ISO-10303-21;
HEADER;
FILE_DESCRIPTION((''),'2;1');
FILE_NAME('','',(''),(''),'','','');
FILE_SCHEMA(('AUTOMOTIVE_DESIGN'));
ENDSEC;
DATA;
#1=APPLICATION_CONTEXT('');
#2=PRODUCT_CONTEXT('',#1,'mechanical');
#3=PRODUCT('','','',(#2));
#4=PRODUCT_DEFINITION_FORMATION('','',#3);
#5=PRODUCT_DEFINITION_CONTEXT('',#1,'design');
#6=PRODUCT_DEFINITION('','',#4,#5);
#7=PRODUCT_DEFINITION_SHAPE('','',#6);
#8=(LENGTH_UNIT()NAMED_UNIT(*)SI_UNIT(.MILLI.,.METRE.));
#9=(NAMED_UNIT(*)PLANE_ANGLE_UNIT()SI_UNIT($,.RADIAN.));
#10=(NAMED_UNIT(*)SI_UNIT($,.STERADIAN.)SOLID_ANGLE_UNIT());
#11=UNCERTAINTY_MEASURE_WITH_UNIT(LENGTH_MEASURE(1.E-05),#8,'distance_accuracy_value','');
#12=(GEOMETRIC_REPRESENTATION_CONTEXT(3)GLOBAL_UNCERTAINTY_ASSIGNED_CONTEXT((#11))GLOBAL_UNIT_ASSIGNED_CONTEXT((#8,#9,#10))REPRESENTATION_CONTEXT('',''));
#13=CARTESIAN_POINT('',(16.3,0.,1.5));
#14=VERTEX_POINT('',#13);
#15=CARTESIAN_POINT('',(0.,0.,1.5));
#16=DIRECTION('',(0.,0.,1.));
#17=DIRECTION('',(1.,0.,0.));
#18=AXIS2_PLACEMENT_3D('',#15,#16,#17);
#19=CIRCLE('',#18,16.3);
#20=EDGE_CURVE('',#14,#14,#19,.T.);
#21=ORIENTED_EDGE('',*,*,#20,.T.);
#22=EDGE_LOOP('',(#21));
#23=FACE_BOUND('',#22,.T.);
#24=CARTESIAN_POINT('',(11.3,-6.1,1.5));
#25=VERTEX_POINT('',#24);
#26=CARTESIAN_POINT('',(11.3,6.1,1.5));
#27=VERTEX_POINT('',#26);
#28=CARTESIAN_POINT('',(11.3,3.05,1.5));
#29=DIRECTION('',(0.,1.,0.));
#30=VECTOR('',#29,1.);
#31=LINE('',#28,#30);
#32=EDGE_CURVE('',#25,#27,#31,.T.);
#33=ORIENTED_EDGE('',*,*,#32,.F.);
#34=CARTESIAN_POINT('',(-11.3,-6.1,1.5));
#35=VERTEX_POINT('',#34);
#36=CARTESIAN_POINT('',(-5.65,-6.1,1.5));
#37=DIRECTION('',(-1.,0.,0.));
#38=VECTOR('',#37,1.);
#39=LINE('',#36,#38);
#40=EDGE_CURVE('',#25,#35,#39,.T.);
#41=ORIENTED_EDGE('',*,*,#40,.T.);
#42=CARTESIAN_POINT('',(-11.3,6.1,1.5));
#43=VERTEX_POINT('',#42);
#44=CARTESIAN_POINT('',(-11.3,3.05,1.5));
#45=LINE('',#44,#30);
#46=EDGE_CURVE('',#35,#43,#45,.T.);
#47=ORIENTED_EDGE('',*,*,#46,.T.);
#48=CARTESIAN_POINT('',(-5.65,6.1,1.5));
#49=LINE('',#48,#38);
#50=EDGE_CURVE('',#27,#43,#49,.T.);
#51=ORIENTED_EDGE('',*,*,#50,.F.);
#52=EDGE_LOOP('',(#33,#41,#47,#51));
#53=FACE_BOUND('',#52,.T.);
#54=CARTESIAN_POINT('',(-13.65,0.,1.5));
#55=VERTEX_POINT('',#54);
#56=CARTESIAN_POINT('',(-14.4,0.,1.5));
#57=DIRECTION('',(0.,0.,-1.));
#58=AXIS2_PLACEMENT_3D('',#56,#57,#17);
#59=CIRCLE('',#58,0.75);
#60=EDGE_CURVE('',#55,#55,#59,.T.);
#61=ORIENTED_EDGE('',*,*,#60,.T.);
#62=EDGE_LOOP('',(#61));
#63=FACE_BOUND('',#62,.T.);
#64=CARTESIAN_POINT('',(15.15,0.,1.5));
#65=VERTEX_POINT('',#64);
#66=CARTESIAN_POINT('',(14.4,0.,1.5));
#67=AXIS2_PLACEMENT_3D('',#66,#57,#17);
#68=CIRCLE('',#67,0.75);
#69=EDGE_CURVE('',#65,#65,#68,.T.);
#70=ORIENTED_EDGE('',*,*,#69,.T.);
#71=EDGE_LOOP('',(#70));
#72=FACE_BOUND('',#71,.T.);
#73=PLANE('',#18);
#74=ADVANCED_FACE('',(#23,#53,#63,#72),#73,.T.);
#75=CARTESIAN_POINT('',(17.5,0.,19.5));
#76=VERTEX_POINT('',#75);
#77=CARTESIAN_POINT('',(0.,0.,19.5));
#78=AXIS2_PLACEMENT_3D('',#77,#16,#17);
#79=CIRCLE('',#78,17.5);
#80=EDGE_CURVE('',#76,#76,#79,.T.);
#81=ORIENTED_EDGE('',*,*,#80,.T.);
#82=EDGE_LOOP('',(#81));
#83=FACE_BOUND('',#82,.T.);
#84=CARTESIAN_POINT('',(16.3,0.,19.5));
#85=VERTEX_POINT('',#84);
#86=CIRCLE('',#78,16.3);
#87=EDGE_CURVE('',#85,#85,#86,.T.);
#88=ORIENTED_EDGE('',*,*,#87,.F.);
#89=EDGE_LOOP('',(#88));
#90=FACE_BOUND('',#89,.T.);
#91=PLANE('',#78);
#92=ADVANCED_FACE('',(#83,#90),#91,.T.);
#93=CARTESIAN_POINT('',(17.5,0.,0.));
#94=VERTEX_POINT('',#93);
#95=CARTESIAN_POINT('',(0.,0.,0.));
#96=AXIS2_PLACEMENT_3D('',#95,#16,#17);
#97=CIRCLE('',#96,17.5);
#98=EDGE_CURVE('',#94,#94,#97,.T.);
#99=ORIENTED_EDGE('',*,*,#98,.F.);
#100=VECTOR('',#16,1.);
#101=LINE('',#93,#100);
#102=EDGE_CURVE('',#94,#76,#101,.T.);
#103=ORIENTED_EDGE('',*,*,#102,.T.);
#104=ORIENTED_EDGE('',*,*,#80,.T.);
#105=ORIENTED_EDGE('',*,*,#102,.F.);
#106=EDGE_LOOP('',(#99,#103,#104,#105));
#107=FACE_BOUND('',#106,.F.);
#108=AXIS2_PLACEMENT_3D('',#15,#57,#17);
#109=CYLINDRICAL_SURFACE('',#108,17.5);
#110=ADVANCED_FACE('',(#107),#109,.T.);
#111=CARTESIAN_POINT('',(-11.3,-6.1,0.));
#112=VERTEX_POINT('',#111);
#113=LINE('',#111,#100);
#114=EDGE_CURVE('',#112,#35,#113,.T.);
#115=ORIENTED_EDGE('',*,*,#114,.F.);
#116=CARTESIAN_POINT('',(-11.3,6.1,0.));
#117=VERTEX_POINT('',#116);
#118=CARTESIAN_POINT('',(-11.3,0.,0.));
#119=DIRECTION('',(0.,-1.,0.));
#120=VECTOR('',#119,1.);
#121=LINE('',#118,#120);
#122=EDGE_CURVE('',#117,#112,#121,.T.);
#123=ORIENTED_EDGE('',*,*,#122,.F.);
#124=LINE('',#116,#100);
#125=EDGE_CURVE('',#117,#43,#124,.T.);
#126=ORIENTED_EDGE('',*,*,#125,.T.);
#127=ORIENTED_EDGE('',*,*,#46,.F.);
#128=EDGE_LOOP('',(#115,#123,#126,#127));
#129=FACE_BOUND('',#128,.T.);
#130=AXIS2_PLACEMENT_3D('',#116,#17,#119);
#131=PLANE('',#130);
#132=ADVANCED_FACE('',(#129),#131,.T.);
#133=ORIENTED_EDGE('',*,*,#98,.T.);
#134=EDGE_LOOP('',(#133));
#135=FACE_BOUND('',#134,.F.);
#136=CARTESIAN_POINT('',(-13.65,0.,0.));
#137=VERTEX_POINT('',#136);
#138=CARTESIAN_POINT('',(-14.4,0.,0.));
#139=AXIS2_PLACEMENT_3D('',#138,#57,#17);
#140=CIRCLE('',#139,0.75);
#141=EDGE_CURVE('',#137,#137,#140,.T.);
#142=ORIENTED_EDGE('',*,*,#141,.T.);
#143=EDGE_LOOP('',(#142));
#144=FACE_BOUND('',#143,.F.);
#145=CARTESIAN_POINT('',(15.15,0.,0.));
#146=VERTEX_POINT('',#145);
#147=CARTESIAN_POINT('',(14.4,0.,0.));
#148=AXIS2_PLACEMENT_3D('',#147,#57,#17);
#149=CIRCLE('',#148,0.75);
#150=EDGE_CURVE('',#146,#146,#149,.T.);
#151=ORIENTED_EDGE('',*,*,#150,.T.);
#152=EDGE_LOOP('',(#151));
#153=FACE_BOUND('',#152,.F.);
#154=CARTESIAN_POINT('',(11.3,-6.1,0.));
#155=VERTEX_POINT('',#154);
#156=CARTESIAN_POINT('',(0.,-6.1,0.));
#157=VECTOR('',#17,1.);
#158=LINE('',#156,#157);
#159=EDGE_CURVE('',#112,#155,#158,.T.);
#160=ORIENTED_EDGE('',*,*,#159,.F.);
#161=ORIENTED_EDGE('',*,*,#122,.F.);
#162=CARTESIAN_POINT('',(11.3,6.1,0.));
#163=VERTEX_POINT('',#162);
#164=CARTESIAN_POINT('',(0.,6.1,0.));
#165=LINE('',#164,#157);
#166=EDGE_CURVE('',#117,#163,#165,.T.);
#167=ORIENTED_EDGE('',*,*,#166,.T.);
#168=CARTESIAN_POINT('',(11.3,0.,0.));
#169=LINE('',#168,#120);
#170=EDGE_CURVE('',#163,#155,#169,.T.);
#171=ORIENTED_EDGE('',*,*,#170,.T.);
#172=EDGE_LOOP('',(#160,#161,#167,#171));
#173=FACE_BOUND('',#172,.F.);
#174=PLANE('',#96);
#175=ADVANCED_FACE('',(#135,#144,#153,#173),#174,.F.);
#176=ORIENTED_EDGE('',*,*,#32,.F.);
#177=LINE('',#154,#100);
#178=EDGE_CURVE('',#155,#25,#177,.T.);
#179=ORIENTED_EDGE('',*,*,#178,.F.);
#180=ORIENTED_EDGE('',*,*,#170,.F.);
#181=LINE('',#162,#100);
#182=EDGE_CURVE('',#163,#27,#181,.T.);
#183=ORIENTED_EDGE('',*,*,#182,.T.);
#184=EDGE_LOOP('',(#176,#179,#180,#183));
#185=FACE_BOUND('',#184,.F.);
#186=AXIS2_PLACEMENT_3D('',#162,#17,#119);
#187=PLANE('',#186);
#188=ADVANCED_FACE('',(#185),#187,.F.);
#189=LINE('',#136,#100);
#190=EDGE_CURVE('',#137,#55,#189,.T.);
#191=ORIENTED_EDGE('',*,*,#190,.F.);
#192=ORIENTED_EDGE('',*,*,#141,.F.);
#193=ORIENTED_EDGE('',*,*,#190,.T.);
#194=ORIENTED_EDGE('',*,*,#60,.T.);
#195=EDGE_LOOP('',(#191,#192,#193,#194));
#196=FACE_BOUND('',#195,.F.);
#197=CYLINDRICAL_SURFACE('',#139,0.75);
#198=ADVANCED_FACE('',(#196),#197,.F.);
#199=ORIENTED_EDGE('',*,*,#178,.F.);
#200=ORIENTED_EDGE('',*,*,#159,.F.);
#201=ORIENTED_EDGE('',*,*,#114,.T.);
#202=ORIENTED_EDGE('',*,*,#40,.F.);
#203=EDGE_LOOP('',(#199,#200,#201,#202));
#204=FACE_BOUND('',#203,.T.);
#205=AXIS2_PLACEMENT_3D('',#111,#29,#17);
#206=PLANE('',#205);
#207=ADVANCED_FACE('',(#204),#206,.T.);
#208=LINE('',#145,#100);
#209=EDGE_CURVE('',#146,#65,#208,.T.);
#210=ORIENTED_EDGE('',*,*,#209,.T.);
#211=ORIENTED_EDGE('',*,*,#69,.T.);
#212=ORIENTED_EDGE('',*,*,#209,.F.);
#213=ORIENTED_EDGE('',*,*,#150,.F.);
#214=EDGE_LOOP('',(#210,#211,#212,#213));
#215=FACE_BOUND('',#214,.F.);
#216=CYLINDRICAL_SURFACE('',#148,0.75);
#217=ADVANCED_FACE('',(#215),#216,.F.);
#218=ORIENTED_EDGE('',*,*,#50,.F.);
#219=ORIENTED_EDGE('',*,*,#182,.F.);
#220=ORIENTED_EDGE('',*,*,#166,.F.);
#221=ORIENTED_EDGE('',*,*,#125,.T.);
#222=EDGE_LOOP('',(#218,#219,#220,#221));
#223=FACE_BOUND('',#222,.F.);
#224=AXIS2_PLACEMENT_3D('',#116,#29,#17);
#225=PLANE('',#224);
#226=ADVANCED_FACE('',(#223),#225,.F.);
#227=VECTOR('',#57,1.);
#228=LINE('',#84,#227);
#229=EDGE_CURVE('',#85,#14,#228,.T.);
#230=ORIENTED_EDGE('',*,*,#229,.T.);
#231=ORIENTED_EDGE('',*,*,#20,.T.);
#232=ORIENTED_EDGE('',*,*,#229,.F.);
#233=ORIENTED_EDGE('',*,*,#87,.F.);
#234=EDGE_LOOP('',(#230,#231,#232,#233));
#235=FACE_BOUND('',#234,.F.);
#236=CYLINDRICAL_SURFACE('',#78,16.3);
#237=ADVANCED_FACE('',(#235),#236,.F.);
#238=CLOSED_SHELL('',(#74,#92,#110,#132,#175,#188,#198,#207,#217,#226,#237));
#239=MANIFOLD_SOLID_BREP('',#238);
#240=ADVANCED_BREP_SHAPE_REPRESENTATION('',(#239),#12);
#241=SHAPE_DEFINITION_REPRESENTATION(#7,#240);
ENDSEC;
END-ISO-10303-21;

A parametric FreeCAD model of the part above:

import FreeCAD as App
import Part
import Sketcher
from FreeCAD import Vector
Q = App.Units.Quantity


def add_polygon(sketch, points):
    """Adds a closed chain of lines whose ends are joined by coincident constraints."""
    first, n = sketch.GeometryCount, len(points)
    for a, b in zip(points, points[1:] + points[:1]):
        sketch.addGeometry(Part.LineSegment(App.Vector(*a, 0), App.Vector(*b, 0)), False)
    for i in range(n):
        sketch.addConstraint(Sketcher.Constraint("Coincident", first + i, 2, first + (i + 1) % n, 1))

doc = App.newDocument("Part")
body = doc.addObject("PartDesign::Body", "Body")

sketch1 = body.newObject("Sketcher::SketchObject", "Sketch")
sketch1.AttachmentSupport = (doc.getObject("XY_Plane"), [""])
sketch1.MapMode = "FlatFace"
sketch1.addGeometry(Part.Circle(Vector(0, 0, 0), Vector(0, 0, 1), 18), False)
sketch1.addConstraint([
    Sketcher.Constraint("Coincident", 0, 3, -1, 1),
    Sketcher.Constraint("Diameter", 0, Q("35 mm")),
])
pad1 = body.newObject("PartDesign::Pad", "Pad")
pad1.Profile = sketch1
pad1.Length = 20

sketch2 = body.newObject("Sketcher::SketchObject", "Sketch001")
sketch2.AttachmentSupport = (doc.getObject("XY_Plane"), [""])
sketch2.MapMode = "FlatFace"
sketch2.AttachmentOffset = App.Placement(Vector(0, 0, 20), App.Rotation())
sketch2.addGeometry(Part.Circle(Vector(0, 0, 0), Vector(0, 0, 1), 32), False)
sketch2.addConstraint([
    Sketcher.Constraint("Coincident", 0, 3, -1, 1),
    Sketcher.Constraint("Diameter", 0, Q("64 mm")),
])
pocket1 = body.newObject("PartDesign::Pocket", "Pocket")
pocket1.Profile = sketch2
pocket1.Length = 18.5

sketch3 = body.newObject("Sketcher::SketchObject", "Sketch002")
sketch3.AttachmentSupport = (doc.getObject("XY_Plane"), [""])
sketch3.MapMode = "FlatFace"
sketch3.addGeometry(Part.Circle(Vector(-14.4, 0, 0), Vector(0, 0, 1), 0.8), False)
sketch3.addGeometry(Part.Circle(Vector(14.4, 0, 0), Vector(0, 0, 1), 0.8), False)
add_polygon(sketch3, [(-11.3, -6.1), (-11.3, 6.1), (11.3, 6.1), (11.3, -6.1)])
sketch3.addConstraint([
    Sketcher.Constraint("Vertical", 2),
    Sketcher.Constraint("Horizontal", 3),
    Sketcher.Constraint("Vertical", 4),
    Sketcher.Constraint("Horizontal", 5),
    Sketcher.Constraint("Equal", 0, 1),
    Sketcher.Constraint("Symmetric", 0, 3, 1, 3, -1, 1),
    Sketcher.Constraint("Symmetric", 2, 2, 4, 2, -1, 1),
    Sketcher.Constraint("PointOnObject", 0, 3, -1),
    Sketcher.Constraint("Diameter", 0, Q("1.5 mm")),
    Sketcher.Constraint("DistanceX", 3, 1, 3, 2, Q("22.6 mm")),
    Sketcher.Constraint("DistanceY", 2, 1, 2, 2, Q("12.2 mm")),
    Sketcher.Constraint("DistanceX", 0, 3, -1, 1, Q("14.4 mm")),
])
pocket2 = body.newObject("PartDesign::Pocket", "Pocket001")
pocket2.Profile = sketch3
pocket2.Length = 5
pocket2.Reversed = True

sketch4 = body.newObject("Sketcher::SketchObject", "Sketch003")
sketch4.AttachmentSupport = (doc.getObject("XY_Plane"), [""])
sketch4.MapMode = "FlatFace"
sketch4.AttachmentOffset = App.Placement(Vector(0, 0, 1.5), App.Rotation())
sketch4.addGeometry(Part.Circle(Vector(0, 0, 0), Vector(0, 0, 1), 18), False)
sketch4.addConstraint([
    Sketcher.Constraint("Coincident", 0, 3, -1, 1),
    Sketcher.Constraint("Diameter", 0, Q("35 mm")),
])
pad2 = body.newObject("PartDesign::Pad", "Pad001")
pad2.Profile = sketch4
pad2.Length = 18

sketch5 = body.newObject("Sketcher::SketchObject", "Sketch004")
sketch5.AttachmentSupport = (doc.getObject("XY_Plane"), [""])
sketch5.MapMode = "FlatFace"
sketch5.AttachmentOffset = App.Placement(Vector(0, 0, 19.5), App.Rotation())
sketch5.addGeometry(Part.Circle(Vector(0, 0, 0), Vector(0, 0, 1), 16), False)
sketch5.addConstraint([
    Sketcher.Constraint("Coincident", 0, 3, -1, 1),
    Sketcher.Constraint("Diameter", 0, Q("32.6 mm")),
])
pocket3 = body.newObject("PartDesign::Pocket", "Pocket002")
pocket3.Profile = sketch5
pocket3.Length = 18

doc.recompute()
